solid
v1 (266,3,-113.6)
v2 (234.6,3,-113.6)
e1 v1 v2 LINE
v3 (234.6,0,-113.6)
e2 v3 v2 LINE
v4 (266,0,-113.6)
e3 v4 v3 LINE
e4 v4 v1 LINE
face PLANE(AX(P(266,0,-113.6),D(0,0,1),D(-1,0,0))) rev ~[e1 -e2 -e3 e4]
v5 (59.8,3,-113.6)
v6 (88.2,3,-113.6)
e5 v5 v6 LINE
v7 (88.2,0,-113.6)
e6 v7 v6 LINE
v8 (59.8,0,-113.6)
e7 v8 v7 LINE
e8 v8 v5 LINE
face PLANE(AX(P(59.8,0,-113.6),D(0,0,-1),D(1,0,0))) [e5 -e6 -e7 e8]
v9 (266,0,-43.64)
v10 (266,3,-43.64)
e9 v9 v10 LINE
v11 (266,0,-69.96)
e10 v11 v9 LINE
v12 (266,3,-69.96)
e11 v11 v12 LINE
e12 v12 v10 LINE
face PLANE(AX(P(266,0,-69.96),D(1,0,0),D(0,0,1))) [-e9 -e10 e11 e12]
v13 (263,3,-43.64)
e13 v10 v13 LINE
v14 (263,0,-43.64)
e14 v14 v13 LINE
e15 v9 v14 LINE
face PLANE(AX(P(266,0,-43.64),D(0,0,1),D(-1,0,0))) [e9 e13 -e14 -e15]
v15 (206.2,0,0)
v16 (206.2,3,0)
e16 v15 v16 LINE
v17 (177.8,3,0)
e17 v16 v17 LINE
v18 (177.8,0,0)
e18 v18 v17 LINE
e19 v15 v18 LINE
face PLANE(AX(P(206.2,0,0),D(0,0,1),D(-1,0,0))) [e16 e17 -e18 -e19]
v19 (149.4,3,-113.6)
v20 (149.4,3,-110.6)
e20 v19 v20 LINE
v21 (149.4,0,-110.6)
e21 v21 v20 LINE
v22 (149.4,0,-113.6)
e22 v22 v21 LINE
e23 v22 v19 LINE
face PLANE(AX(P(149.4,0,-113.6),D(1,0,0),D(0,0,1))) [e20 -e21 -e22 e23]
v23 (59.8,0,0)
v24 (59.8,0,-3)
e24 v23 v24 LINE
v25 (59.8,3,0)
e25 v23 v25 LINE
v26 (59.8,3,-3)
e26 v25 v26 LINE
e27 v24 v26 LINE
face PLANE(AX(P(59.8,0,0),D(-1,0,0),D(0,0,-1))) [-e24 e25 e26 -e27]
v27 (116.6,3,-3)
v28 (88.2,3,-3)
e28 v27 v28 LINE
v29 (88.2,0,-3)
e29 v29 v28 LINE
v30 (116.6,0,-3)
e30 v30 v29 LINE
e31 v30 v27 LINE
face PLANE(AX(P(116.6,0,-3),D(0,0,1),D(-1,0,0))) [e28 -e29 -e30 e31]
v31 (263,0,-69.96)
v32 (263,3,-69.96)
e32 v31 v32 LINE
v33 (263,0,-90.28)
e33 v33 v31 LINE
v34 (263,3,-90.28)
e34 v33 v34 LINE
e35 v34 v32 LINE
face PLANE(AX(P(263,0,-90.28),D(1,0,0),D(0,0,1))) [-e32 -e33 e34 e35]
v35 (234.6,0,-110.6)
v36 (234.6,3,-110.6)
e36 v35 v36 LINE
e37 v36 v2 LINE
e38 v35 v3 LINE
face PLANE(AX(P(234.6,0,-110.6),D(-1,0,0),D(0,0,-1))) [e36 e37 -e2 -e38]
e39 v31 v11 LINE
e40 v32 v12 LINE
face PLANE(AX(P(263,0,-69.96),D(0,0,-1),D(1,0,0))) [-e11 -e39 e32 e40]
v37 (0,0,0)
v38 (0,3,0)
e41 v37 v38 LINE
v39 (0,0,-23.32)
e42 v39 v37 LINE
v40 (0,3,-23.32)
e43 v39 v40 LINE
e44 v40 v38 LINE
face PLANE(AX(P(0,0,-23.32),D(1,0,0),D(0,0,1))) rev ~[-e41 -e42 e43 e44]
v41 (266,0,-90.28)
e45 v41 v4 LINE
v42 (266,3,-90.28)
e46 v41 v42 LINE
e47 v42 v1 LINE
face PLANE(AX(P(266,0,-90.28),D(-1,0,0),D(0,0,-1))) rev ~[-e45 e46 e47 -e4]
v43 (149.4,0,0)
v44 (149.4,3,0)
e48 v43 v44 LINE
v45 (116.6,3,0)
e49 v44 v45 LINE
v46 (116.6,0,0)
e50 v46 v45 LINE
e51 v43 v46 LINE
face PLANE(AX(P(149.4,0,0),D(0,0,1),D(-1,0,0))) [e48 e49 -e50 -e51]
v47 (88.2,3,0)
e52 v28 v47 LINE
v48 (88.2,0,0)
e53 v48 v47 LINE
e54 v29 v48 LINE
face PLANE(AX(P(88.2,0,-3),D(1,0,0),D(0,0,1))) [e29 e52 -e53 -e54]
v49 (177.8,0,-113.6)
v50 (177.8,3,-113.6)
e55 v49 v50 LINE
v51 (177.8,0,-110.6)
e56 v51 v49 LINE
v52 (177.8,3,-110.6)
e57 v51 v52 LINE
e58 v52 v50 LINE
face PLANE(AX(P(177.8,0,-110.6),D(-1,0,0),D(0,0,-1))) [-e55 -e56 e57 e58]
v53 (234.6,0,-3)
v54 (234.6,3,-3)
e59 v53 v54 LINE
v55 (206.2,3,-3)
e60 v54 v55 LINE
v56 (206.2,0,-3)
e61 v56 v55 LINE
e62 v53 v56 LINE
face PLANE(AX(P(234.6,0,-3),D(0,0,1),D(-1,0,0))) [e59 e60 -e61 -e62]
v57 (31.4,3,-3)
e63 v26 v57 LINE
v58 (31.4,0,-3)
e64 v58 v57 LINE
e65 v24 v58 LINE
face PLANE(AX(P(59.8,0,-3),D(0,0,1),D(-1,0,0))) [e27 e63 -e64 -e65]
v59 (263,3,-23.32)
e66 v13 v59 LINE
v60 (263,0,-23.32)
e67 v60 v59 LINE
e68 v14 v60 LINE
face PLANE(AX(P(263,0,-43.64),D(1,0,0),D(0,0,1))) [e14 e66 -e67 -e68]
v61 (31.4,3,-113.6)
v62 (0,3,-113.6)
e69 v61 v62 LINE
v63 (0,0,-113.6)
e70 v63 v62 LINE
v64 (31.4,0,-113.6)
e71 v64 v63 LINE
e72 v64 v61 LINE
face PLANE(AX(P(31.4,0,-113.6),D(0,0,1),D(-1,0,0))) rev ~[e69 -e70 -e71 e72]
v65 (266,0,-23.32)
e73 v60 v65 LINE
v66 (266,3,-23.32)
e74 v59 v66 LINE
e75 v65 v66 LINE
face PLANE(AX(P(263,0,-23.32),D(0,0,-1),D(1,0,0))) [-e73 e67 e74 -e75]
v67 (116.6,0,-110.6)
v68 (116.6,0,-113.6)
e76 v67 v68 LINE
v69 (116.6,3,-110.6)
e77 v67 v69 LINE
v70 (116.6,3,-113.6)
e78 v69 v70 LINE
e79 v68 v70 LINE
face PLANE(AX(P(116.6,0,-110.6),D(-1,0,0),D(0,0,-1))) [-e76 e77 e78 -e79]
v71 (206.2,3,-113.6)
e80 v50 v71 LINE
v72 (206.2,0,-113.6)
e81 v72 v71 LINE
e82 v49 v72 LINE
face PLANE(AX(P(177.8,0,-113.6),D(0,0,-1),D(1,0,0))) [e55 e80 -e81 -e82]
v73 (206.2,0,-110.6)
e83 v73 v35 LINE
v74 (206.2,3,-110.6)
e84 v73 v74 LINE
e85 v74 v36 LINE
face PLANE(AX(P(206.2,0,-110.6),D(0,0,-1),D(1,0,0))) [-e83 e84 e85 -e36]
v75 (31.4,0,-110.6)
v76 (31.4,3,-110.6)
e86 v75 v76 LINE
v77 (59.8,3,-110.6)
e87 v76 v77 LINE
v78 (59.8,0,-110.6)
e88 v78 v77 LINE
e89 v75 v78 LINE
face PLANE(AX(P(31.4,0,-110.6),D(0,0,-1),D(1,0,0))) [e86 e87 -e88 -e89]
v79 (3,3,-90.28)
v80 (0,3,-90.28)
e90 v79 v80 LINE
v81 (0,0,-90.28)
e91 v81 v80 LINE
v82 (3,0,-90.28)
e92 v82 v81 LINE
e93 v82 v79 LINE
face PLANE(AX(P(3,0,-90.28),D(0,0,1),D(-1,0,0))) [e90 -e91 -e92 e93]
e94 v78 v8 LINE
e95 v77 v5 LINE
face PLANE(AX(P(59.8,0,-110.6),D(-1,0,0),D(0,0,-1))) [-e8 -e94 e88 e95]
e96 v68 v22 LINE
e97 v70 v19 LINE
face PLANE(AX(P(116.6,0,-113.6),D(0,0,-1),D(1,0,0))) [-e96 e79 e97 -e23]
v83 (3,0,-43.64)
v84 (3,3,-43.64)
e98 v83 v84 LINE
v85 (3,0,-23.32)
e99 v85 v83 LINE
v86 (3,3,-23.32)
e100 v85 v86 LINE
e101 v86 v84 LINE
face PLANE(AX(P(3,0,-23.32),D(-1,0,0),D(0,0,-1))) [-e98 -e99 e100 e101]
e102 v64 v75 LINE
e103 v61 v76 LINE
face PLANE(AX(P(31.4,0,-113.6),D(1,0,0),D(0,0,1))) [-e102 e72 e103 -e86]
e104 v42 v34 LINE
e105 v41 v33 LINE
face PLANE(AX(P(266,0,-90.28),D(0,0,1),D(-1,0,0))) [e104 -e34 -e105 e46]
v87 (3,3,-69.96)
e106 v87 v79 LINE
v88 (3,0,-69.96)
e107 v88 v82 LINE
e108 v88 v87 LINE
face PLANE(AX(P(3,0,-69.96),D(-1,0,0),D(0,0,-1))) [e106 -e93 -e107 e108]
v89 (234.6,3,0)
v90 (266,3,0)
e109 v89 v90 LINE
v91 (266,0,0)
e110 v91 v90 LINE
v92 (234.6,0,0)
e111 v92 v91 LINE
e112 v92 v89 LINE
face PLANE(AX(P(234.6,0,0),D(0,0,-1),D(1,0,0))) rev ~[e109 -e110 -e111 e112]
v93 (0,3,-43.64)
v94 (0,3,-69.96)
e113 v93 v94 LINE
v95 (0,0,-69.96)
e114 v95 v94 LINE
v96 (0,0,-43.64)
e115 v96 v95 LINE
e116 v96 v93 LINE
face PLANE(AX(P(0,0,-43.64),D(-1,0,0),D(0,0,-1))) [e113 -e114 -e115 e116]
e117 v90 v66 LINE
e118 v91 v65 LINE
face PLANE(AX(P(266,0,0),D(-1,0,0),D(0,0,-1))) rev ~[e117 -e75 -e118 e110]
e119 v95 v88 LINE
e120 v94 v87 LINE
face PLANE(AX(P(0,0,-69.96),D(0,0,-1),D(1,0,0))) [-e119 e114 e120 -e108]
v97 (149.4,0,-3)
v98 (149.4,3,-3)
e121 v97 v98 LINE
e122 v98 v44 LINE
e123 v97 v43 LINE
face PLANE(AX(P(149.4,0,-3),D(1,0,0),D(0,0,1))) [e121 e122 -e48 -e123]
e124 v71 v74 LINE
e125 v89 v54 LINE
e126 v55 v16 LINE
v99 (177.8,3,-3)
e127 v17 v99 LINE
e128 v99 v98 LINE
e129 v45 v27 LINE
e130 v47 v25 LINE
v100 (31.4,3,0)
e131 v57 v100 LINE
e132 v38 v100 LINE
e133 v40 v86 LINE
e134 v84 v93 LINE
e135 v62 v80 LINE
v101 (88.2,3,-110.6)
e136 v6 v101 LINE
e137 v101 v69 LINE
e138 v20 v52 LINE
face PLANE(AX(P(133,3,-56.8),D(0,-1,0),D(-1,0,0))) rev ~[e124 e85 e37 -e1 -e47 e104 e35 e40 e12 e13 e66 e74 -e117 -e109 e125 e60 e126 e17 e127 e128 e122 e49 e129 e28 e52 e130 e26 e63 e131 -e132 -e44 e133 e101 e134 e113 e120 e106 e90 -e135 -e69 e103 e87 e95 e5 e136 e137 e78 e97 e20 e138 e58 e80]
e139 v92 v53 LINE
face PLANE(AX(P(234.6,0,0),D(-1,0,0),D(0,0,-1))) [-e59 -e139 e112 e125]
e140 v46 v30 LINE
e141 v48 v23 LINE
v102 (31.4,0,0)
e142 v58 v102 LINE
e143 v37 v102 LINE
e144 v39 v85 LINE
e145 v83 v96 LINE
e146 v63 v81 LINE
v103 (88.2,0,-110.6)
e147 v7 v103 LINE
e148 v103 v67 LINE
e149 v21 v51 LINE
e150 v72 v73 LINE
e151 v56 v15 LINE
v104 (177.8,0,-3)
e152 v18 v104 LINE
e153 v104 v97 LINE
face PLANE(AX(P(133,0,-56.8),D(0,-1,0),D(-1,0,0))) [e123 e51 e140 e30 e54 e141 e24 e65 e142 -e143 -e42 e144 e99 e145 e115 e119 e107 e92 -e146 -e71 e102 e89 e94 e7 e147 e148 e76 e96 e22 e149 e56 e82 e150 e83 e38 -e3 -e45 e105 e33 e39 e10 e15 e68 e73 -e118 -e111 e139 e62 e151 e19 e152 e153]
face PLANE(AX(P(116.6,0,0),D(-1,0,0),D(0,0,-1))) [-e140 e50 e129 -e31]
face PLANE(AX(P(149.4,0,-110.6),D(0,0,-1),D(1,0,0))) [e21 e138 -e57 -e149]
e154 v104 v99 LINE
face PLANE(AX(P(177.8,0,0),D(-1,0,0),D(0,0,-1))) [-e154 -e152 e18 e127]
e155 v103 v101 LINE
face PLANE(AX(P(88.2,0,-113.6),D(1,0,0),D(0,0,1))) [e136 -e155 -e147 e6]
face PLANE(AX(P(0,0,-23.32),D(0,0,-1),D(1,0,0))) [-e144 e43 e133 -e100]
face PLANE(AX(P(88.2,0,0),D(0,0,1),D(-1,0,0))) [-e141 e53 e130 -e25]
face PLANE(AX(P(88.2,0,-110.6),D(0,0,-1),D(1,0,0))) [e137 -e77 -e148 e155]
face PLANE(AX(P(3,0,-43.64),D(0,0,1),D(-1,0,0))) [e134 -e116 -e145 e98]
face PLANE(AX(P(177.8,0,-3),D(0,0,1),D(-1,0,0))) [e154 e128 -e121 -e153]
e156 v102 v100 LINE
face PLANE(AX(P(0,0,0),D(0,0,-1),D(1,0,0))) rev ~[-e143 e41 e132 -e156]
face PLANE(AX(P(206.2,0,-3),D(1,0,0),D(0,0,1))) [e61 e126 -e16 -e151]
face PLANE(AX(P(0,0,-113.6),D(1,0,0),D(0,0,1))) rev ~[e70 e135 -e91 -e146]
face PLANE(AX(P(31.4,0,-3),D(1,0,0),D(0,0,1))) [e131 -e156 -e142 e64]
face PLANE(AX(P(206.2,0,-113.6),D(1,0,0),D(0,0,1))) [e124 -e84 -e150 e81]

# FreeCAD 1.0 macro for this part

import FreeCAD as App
import Part
import Sketcher
Q = App.Units.Quantity

doc = App.newDocument("Part")
body = doc.addObject("PartDesign::Body", "Body")

# Sketch on XZ plane
sketch1 = body.newObject("Sketcher::SketchObject", "Sketch")
sketch1.AttachmentSupport = (doc.getObject("XZ_Plane"), [""])
sketch1.MapMode = "FlatFace"
sketch1.addGeometry([
    Part.LineSegment(App.Vector(31.4, -113.6, 0), App.Vector(0, -113.6, 0)),  # 0
    Part.LineSegment(App.Vector(0, -113.6, 0), App.Vector(0, -90.3, 0)),  # 1
    Part.LineSegment(App.Vector(0, -90.3, 0), App.Vector(3, -90.3, 0)),  # 2
    Part.LineSegment(App.Vector(3, -90.3, 0), App.Vector(3, -70, 0)),  # 3
    Part.LineSegment(App.Vector(3, -70, 0), App.Vector(0, -70, 0)),  # 4
    Part.LineSegment(App.Vector(0, -70, 0), App.Vector(0, -43.6, 0)),  # 5
    Part.LineSegment(App.Vector(0, -43.6, 0), App.Vector(3, -43.6, 0)),  # 6
    Part.LineSegment(App.Vector(3, -43.6, 0), App.Vector(3, -23.3, 0)),  # 7
    Part.LineSegment(App.Vector(3, -23.3, 0), App.Vector(0, -23.3, 0)),  # 8
    Part.LineSegment(App.Vector(0, -23.3, 0), App.Vector(0, 0, 0)),  # 9
    Part.LineSegment(App.Vector(0, 0, 0), App.Vector(31.4, 0, 0)),  # 10
    Part.LineSegment(App.Vector(31.4, 0, 0), App.Vector(31.4, -3, 0)),  # 11
    Part.LineSegment(App.Vector(31.4, -3, 0), App.Vector(59.8, -3, 0)),  # 12
    Part.LineSegment(App.Vector(59.8, -3, 0), App.Vector(59.8, 0, 0)),  # 13
    Part.LineSegment(App.Vector(59.8, 0, 0), App.Vector(88.2, 0, 0)),  # 14
    Part.LineSegment(App.Vector(88.2, 0, 0), App.Vector(88.2, -3, 0)),  # 15
    Part.LineSegment(App.Vector(88.2, -3, 0), App.Vector(116.6, -3, 0)),  # 16
    Part.LineSegment(App.Vector(116.6, -3, 0), App.Vector(116.6, 0, 0)),  # 17
    Part.LineSegment(App.Vector(116.6, 0, 0), App.Vector(149.4, 0, 0)),  # 18
    Part.LineSegment(App.Vector(149.4, 0, 0), App.Vector(149.4, -3, 0)),  # 19
    Part.LineSegment(App.Vector(149.4, -3, 0), App.Vector(177.8, -3, 0)),  # 20
    Part.LineSegment(App.Vector(177.8, -3, 0), App.Vector(177.8, 0, 0)),  # 21
    Part.LineSegment(App.Vector(177.8, 0, 0), App.Vector(206.2, 0, 0)),  # 22
    Part.LineSegment(App.Vector(206.2, 0, 0), App.Vector(206.2, -3, 0)),  # 23
    Part.LineSegment(App.Vector(206.2, -3, 0), App.Vector(234.6, -3, 0)),  # 24
    Part.LineSegment(App.Vector(234.6, -3, 0), App.Vector(234.6, 0, 0)),  # 25
    Part.LineSegment(App.Vector(234.6, 0, 0), App.Vector(266, 0, 0)),  # 26
    Part.LineSegment(App.Vector(266, 0, 0), App.Vector(266, -23.3, 0)),  # 27
    Part.LineSegment(App.Vector(266, -23.3, 0), App.Vector(263, -23.3, 0)),  # 28
    Part.LineSegment(App.Vector(263, -23.3, 0), App.Vector(263, -43.6, 0)),  # 29
    Part.LineSegment(App.Vector(263, -43.6, 0), App.Vector(266, -43.6, 0)),  # 30
    Part.LineSegment(App.Vector(266, -43.6, 0), App.Vector(266, -70, 0)),  # 31
    Part.LineSegment(App.Vector(266, -70, 0), App.Vector(263, -70, 0)),  # 32
    Part.LineSegment(App.Vector(263, -70, 0), App.Vector(263, -90.3, 0)),  # 33
    Part.LineSegment(App.Vector(263, -90.3, 0), App.Vector(266, -90.3, 0)),  # 34
    Part.LineSegment(App.Vector(266, -90.3, 0), App.Vector(266, -113.6, 0)),  # 35
    Part.LineSegment(App.Vector(266, -113.6, 0), App.Vector(234.6, -113.6, 0)),  # 36
    Part.LineSegment(App.Vector(234.6, -113.6, 0), App.Vector(234.6, -110.6, 0)),  # 37
    Part.LineSegment(App.Vector(234.6, -110.6, 0), App.Vector(206.2, -110.6, 0)),  # 38
    Part.LineSegment(App.Vector(206.2, -110.6, 0), App.Vector(206.2, -113.6, 0)),  # 39
    Part.LineSegment(App.Vector(206.2, -113.6, 0), App.Vector(177.8, -113.6, 0)),  # 40
    Part.LineSegment(App.Vector(177.8, -113.6, 0), App.Vector(177.8, -110.6, 0)),  # 41
    Part.LineSegment(App.Vector(177.8, -110.6, 0), App.Vector(149.4, -110.6, 0)),  # 42
    Part.LineSegment(App.Vector(149.4, -110.6, 0), App.Vector(149.4, -113.6, 0)),  # 43
    Part.LineSegment(App.Vector(149.4, -113.6, 0), App.Vector(116.6, -113.6, 0)),  # 44
    Part.LineSegment(App.Vector(116.6, -113.6, 0), App.Vector(116.6, -110.6, 0)),  # 45
    Part.LineSegment(App.Vector(116.6, -110.6, 0), App.Vector(88.2, -110.6, 0)),  # 46
    Part.LineSegment(App.Vector(88.2, -110.6, 0), App.Vector(88.2, -113.6, 0)),  # 47
    Part.LineSegment(App.Vector(88.2, -113.6, 0), App.Vector(59.8, -113.6, 0)),  # 48
    Part.LineSegment(App.Vector(59.8, -113.6, 0), App.Vector(59.8, -110.6, 0)),  # 49
    Part.LineSegment(App.Vector(59.8, -110.6, 0), App.Vector(31.4, -110.6, 0)),  # 50
    Part.LineSegment(App.Vector(31.4, -110.6, 0), App.Vector(31.4, -113.6, 0)),  # 51
], False)
sketch1.addConstraint([
    Sketcher.Constraint("Coincident", 0, 2, 1, 1),
    Sketcher.Constraint("Coincident", 1, 2, 2, 1),
    Sketcher.Constraint("Coincident", 2, 2, 3, 1),
    Sketcher.Constraint("Coincident", 3, 2, 4, 1),
    Sketcher.Constraint("Coincident", 4, 2, 5, 1),
    Sketcher.Constraint("Coincident", 5, 2, 6, 1),
    Sketcher.Constraint("Coincident", 6, 2, 7, 1),
    Sketcher.Constraint("Coincident", 7, 2, 8, 1),
    Sketcher.Constraint("Coincident", 8, 2, 9, 1),
    Sketcher.Constraint("Coincident", 9, 2, 10, 1),
    Sketcher.Constraint("Coincident", 10, 2, 11, 1),
    Sketcher.Constraint("Coincident", 11, 2, 12, 1),
    Sketcher.Constraint("Coincident", 12, 2, 13, 1),
    Sketcher.Constraint("Coincident", 13, 2, 14, 1),
    Sketcher.Constraint("Coincident", 14, 2, 15, 1),
    Sketcher.Constraint("Coincident", 15, 2, 16, 1),
    Sketcher.Constraint("Coincident", 16, 2, 17, 1),
    Sketcher.Constraint("Coincident", 17, 2, 18, 1),
    Sketcher.Constraint("Coincident", 18, 2, 19, 1),
    Sketcher.Constraint("Coincident", 19, 2, 20, 1),
    Sketcher.Constraint("Coincident", 20, 2, 21, 1),
    Sketcher.Constraint("Coincident", 21, 2, 22, 1),
    Sketcher.Constraint("Coincident", 22, 2, 23, 1),
    Sketcher.Constraint("Coincident", 23, 2, 24, 1),
    Sketcher.Constraint("Coincident", 24, 2, 25, 1),
    Sketcher.Constraint("Coincident", 25, 2, 26, 1),
    Sketcher.Constraint("Coincident", 26, 2, 27, 1),
    Sketcher.Constraint("Coincident", 27, 2, 28, 1),
    Sketcher.Constraint("Coincident", 28, 2, 29, 1),
    Sketcher.Constraint("Coincident", 29, 2, 30, 1),
    Sketcher.Constraint("Coincident", 30, 2, 31, 1),
    Sketcher.Constraint("Coincident", 31, 2, 32, 1),
    Sketcher.Constraint("Coincident", 32, 2, 33, 1),
    Sketcher.Constraint("Coincident", 33, 2, 34, 1),
    Sketcher.Constraint("Coincident", 34, 2, 35, 1),
    Sketcher.Constraint("Coincident", 35, 2, 36, 1),
    Sketcher.Constraint("Coincident", 36, 2, 37, 1),
    Sketcher.Constraint("Coincident", 37, 2, 38, 1),
    Sketcher.Constraint("Coincident", 38, 2, 39, 1),
    Sketcher.Constraint("Coincident", 39, 2, 40, 1),
    Sketcher.Constraint("Coincident", 40, 2, 41, 1),
    Sketcher.Constraint("Coincident", 41, 2, 42, 1),
    Sketcher.Constraint("Coincident", 42, 2, 43, 1),
    Sketcher.Constraint("Coincident", 43, 2, 44, 1),
    Sketcher.Constraint("Coincident", 44, 2, 45, 1),
    Sketcher.Constraint("Coincident", 45, 2, 46, 1),
    Sketcher.Constraint("Coincident", 46, 2, 47, 1),
    Sketcher.Constraint("Coincident", 47, 2, 48, 1),
    Sketcher.Constraint("Coincident", 48, 2, 49, 1),
    Sketcher.Constraint("Coincident", 49, 2, 50, 1),
    Sketcher.Constraint("Coincident", 50, 2, 51, 1),
    Sketcher.Constraint("Coincident", 51, 2, 0, 1),
    Sketcher.Constraint("Horizontal", 0),
    Sketcher.Constraint("Vertical", 1),
    Sketcher.Constraint("Horizontal", 2),
    Sketcher.Constraint("Vertical", 3),
    Sketcher.Constraint("Horizontal", 4),
    Sketcher.Constraint("Vertical", 5),
    Sketcher.Constraint("Horizontal", 6),
    Sketcher.Constraint("Vertical", 7),
    Sketcher.Constraint("Horizontal", 8),
    Sketcher.Constraint("Vertical", 9),
    Sketcher.Constraint("Horizontal", 10),
    Sketcher.Constraint("Vertical", 11),
    Sketcher.Constraint("Horizontal", 12),
    Sketcher.Constraint("Vertical", 13),
    Sketcher.Constraint("Horizontal", 14),
    Sketcher.Constraint("Vertical", 15),
    Sketcher.Constraint("Horizontal", 16),
    Sketcher.Constraint("Vertical", 17),
    Sketcher.Constraint("Horizontal", 18),
    Sketcher.Constraint("Vertical", 19),
    Sketcher.Constraint("Horizontal", 20),
    Sketcher.Constraint("Vertical", 21),
    Sketcher.Constraint("Horizontal", 22),
    Sketcher.Constraint("Vertical", 23),
    Sketcher.Constraint("Horizontal", 24),
    Sketcher.Constraint("Vertical", 25),
    Sketcher.Constraint("Horizontal", 26),
    Sketcher.Constraint("Vertical", 27),
    Sketcher.Constraint("Horizontal", 28),
    Sketcher.Constraint("Vertical", 29),
    Sketcher.Constraint("Horizontal", 30),
    Sketcher.Constraint("Vertical", 31),
    Sketcher.Constraint("Horizontal", 32),
    Sketcher.Constraint("Vertical", 33),
    Sketcher.Constraint("Horizontal", 34),
    Sketcher.Constraint("Vertical", 35),
    Sketcher.Constraint("Horizontal", 36),
    Sketcher.Constraint("Vertical", 37),
    Sketcher.Constraint("Horizontal", 38),
    Sketcher.Constraint("Vertical", 39),
    Sketcher.Constraint("Horizontal", 40),
    Sketcher.Constraint("Vertical", 41),
    Sketcher.Constraint("Horizontal", 42),
    Sketcher.Constraint("Vertical", 43),
    Sketcher.Constraint("Horizontal", 44),
    Sketcher.Constraint("Vertical", 45),
    Sketcher.Constraint("Horizontal", 46),
    Sketcher.Constraint("Vertical", 47),
    Sketcher.Constraint("Horizontal", 48),
    Sketcher.Constraint("Vertical", 49),
    Sketcher.Constraint("Horizontal", 50),
    Sketcher.Constraint("Vertical", 51),
    Sketcher.Constraint("Coincident", 9, 2, -1, 1),
    Sketcher.Constraint("PointOnObject", 0, 2, -2),
    Sketcher.Constraint("PointOnObject", 4, 2, -2),
    Sketcher.Constraint("PointOnObject", 13, 2, -1),
    Sketcher.Constraint("PointOnObject", 17, 2, -1),
    Sketcher.Constraint("PointOnObject", 21, 2, -1),
    Sketcher.Constraint("PointOnObject", 25, 2, -1),
    Sketcher.Constraint("Horizontal", 12, 2, 15, 2),
    Sketcher.Constraint("Horizontal", 16, 2, 19, 2),
    Sketcher.Constraint("Horizontal", 20, 2, 23, 2),
    Sketcher.Constraint("Horizontal", 8, 2, 27, 2),
    Sketcher.Constraint("Horizontal", 6, 2, 29, 2),
    Sketcher.Constraint("Horizontal", 4, 2, 31, 2),
    Sketcher.Constraint("Horizontal", 2, 2, 33, 2),
    Sketcher.Constraint("Horizontal", 0, 2, 35, 2),
    Sketcher.Constraint("Horizontal", 36, 2, 39, 2),
    Sketcher.Constraint("Horizontal", 38, 2, 41, 2),
    Sketcher.Constraint("Horizontal", 40, 2, 43, 2),
    Sketcher.Constraint("Horizontal", 42, 2, 45, 2),
    Sketcher.Constraint("Horizontal", 44, 2, 47, 2),
    Sketcher.Constraint("Horizontal", 46, 2, 49, 2),
    Sketcher.Constraint("Vertical", 3, 2, 6, 2),
    Sketcher.Constraint("Vertical", 27, 2, 30, 2),
    Sketcher.Constraint("Vertical", 29, 2, 32, 2),
    Sketcher.Constraint("Vertical", 31, 2, 34, 2),
    Sketcher.Constraint("Vertical", 25, 2, 36, 2),
    Sketcher.Constraint("Vertical", 23, 2, 38, 2),
    Sketcher.Constraint("Vertical", 21, 2, 40, 2),
    Sketcher.Constraint("Vertical", 19, 2, 42, 2),
    Sketcher.Constraint("Vertical", 17, 2, 44, 2),
    Sketcher.Constraint("Vertical", 15, 2, 46, 2),
    Sketcher.Constraint("Vertical", 13, 2, 48, 2),
    Sketcher.Constraint("Vertical", 11, 2, 50, 2),
    Sketcher.Constraint("Equal", 12, 14),
    Sketcher.Constraint("Equal", 14, 16),
    Sketcher.Constraint("Equal", 16, 20),
    Sketcher.Constraint("Equal", 20, 22),
    Sketcher.Constraint("Equal", 22, 24),
    Sketcher.Constraint("Equal", 10, 26),
    Sketcher.Constraint("Equal", 8, 28),
    Sketcher.Constraint("Equal", 3, 7),
    Sketcher.Constraint("Equal", 1, 9),
    Sketcher.Constraint("Equal", 34, 11),
    Sketcher.Constraint("Equal", 25, 37),
    Sketcher.Constraint("DistanceX", 2, 1, 2, 2, Q("3 mm")),
    Sketcher.Constraint("DistanceX", 0, 2, 0, 1, Q("31.4 mm")),
    Sketcher.Constraint("DistanceX", 12, 1, 12, 2, Q("28.4 mm")),
    Sketcher.Constraint("DistanceX", 18, 1, 18, 2, Q("32.8 mm")),
    Sketcher.Constraint("DistanceY", 1, 1, 1, 2, Q("23.32 mm")),
    Sketcher.Constraint("DistanceY", 3, 1, 3, 2, Q("20.32 mm")),
    Sketcher.Constraint("DistanceY", 5, 1, 5, 2, Q("26.32 mm")),
])
pad1 = body.newObject("PartDesign::Pad", "Pad")
pad1.Profile = sketch1
pad1.Length = 3
pad1.Reversed = True

doc.recompute()
